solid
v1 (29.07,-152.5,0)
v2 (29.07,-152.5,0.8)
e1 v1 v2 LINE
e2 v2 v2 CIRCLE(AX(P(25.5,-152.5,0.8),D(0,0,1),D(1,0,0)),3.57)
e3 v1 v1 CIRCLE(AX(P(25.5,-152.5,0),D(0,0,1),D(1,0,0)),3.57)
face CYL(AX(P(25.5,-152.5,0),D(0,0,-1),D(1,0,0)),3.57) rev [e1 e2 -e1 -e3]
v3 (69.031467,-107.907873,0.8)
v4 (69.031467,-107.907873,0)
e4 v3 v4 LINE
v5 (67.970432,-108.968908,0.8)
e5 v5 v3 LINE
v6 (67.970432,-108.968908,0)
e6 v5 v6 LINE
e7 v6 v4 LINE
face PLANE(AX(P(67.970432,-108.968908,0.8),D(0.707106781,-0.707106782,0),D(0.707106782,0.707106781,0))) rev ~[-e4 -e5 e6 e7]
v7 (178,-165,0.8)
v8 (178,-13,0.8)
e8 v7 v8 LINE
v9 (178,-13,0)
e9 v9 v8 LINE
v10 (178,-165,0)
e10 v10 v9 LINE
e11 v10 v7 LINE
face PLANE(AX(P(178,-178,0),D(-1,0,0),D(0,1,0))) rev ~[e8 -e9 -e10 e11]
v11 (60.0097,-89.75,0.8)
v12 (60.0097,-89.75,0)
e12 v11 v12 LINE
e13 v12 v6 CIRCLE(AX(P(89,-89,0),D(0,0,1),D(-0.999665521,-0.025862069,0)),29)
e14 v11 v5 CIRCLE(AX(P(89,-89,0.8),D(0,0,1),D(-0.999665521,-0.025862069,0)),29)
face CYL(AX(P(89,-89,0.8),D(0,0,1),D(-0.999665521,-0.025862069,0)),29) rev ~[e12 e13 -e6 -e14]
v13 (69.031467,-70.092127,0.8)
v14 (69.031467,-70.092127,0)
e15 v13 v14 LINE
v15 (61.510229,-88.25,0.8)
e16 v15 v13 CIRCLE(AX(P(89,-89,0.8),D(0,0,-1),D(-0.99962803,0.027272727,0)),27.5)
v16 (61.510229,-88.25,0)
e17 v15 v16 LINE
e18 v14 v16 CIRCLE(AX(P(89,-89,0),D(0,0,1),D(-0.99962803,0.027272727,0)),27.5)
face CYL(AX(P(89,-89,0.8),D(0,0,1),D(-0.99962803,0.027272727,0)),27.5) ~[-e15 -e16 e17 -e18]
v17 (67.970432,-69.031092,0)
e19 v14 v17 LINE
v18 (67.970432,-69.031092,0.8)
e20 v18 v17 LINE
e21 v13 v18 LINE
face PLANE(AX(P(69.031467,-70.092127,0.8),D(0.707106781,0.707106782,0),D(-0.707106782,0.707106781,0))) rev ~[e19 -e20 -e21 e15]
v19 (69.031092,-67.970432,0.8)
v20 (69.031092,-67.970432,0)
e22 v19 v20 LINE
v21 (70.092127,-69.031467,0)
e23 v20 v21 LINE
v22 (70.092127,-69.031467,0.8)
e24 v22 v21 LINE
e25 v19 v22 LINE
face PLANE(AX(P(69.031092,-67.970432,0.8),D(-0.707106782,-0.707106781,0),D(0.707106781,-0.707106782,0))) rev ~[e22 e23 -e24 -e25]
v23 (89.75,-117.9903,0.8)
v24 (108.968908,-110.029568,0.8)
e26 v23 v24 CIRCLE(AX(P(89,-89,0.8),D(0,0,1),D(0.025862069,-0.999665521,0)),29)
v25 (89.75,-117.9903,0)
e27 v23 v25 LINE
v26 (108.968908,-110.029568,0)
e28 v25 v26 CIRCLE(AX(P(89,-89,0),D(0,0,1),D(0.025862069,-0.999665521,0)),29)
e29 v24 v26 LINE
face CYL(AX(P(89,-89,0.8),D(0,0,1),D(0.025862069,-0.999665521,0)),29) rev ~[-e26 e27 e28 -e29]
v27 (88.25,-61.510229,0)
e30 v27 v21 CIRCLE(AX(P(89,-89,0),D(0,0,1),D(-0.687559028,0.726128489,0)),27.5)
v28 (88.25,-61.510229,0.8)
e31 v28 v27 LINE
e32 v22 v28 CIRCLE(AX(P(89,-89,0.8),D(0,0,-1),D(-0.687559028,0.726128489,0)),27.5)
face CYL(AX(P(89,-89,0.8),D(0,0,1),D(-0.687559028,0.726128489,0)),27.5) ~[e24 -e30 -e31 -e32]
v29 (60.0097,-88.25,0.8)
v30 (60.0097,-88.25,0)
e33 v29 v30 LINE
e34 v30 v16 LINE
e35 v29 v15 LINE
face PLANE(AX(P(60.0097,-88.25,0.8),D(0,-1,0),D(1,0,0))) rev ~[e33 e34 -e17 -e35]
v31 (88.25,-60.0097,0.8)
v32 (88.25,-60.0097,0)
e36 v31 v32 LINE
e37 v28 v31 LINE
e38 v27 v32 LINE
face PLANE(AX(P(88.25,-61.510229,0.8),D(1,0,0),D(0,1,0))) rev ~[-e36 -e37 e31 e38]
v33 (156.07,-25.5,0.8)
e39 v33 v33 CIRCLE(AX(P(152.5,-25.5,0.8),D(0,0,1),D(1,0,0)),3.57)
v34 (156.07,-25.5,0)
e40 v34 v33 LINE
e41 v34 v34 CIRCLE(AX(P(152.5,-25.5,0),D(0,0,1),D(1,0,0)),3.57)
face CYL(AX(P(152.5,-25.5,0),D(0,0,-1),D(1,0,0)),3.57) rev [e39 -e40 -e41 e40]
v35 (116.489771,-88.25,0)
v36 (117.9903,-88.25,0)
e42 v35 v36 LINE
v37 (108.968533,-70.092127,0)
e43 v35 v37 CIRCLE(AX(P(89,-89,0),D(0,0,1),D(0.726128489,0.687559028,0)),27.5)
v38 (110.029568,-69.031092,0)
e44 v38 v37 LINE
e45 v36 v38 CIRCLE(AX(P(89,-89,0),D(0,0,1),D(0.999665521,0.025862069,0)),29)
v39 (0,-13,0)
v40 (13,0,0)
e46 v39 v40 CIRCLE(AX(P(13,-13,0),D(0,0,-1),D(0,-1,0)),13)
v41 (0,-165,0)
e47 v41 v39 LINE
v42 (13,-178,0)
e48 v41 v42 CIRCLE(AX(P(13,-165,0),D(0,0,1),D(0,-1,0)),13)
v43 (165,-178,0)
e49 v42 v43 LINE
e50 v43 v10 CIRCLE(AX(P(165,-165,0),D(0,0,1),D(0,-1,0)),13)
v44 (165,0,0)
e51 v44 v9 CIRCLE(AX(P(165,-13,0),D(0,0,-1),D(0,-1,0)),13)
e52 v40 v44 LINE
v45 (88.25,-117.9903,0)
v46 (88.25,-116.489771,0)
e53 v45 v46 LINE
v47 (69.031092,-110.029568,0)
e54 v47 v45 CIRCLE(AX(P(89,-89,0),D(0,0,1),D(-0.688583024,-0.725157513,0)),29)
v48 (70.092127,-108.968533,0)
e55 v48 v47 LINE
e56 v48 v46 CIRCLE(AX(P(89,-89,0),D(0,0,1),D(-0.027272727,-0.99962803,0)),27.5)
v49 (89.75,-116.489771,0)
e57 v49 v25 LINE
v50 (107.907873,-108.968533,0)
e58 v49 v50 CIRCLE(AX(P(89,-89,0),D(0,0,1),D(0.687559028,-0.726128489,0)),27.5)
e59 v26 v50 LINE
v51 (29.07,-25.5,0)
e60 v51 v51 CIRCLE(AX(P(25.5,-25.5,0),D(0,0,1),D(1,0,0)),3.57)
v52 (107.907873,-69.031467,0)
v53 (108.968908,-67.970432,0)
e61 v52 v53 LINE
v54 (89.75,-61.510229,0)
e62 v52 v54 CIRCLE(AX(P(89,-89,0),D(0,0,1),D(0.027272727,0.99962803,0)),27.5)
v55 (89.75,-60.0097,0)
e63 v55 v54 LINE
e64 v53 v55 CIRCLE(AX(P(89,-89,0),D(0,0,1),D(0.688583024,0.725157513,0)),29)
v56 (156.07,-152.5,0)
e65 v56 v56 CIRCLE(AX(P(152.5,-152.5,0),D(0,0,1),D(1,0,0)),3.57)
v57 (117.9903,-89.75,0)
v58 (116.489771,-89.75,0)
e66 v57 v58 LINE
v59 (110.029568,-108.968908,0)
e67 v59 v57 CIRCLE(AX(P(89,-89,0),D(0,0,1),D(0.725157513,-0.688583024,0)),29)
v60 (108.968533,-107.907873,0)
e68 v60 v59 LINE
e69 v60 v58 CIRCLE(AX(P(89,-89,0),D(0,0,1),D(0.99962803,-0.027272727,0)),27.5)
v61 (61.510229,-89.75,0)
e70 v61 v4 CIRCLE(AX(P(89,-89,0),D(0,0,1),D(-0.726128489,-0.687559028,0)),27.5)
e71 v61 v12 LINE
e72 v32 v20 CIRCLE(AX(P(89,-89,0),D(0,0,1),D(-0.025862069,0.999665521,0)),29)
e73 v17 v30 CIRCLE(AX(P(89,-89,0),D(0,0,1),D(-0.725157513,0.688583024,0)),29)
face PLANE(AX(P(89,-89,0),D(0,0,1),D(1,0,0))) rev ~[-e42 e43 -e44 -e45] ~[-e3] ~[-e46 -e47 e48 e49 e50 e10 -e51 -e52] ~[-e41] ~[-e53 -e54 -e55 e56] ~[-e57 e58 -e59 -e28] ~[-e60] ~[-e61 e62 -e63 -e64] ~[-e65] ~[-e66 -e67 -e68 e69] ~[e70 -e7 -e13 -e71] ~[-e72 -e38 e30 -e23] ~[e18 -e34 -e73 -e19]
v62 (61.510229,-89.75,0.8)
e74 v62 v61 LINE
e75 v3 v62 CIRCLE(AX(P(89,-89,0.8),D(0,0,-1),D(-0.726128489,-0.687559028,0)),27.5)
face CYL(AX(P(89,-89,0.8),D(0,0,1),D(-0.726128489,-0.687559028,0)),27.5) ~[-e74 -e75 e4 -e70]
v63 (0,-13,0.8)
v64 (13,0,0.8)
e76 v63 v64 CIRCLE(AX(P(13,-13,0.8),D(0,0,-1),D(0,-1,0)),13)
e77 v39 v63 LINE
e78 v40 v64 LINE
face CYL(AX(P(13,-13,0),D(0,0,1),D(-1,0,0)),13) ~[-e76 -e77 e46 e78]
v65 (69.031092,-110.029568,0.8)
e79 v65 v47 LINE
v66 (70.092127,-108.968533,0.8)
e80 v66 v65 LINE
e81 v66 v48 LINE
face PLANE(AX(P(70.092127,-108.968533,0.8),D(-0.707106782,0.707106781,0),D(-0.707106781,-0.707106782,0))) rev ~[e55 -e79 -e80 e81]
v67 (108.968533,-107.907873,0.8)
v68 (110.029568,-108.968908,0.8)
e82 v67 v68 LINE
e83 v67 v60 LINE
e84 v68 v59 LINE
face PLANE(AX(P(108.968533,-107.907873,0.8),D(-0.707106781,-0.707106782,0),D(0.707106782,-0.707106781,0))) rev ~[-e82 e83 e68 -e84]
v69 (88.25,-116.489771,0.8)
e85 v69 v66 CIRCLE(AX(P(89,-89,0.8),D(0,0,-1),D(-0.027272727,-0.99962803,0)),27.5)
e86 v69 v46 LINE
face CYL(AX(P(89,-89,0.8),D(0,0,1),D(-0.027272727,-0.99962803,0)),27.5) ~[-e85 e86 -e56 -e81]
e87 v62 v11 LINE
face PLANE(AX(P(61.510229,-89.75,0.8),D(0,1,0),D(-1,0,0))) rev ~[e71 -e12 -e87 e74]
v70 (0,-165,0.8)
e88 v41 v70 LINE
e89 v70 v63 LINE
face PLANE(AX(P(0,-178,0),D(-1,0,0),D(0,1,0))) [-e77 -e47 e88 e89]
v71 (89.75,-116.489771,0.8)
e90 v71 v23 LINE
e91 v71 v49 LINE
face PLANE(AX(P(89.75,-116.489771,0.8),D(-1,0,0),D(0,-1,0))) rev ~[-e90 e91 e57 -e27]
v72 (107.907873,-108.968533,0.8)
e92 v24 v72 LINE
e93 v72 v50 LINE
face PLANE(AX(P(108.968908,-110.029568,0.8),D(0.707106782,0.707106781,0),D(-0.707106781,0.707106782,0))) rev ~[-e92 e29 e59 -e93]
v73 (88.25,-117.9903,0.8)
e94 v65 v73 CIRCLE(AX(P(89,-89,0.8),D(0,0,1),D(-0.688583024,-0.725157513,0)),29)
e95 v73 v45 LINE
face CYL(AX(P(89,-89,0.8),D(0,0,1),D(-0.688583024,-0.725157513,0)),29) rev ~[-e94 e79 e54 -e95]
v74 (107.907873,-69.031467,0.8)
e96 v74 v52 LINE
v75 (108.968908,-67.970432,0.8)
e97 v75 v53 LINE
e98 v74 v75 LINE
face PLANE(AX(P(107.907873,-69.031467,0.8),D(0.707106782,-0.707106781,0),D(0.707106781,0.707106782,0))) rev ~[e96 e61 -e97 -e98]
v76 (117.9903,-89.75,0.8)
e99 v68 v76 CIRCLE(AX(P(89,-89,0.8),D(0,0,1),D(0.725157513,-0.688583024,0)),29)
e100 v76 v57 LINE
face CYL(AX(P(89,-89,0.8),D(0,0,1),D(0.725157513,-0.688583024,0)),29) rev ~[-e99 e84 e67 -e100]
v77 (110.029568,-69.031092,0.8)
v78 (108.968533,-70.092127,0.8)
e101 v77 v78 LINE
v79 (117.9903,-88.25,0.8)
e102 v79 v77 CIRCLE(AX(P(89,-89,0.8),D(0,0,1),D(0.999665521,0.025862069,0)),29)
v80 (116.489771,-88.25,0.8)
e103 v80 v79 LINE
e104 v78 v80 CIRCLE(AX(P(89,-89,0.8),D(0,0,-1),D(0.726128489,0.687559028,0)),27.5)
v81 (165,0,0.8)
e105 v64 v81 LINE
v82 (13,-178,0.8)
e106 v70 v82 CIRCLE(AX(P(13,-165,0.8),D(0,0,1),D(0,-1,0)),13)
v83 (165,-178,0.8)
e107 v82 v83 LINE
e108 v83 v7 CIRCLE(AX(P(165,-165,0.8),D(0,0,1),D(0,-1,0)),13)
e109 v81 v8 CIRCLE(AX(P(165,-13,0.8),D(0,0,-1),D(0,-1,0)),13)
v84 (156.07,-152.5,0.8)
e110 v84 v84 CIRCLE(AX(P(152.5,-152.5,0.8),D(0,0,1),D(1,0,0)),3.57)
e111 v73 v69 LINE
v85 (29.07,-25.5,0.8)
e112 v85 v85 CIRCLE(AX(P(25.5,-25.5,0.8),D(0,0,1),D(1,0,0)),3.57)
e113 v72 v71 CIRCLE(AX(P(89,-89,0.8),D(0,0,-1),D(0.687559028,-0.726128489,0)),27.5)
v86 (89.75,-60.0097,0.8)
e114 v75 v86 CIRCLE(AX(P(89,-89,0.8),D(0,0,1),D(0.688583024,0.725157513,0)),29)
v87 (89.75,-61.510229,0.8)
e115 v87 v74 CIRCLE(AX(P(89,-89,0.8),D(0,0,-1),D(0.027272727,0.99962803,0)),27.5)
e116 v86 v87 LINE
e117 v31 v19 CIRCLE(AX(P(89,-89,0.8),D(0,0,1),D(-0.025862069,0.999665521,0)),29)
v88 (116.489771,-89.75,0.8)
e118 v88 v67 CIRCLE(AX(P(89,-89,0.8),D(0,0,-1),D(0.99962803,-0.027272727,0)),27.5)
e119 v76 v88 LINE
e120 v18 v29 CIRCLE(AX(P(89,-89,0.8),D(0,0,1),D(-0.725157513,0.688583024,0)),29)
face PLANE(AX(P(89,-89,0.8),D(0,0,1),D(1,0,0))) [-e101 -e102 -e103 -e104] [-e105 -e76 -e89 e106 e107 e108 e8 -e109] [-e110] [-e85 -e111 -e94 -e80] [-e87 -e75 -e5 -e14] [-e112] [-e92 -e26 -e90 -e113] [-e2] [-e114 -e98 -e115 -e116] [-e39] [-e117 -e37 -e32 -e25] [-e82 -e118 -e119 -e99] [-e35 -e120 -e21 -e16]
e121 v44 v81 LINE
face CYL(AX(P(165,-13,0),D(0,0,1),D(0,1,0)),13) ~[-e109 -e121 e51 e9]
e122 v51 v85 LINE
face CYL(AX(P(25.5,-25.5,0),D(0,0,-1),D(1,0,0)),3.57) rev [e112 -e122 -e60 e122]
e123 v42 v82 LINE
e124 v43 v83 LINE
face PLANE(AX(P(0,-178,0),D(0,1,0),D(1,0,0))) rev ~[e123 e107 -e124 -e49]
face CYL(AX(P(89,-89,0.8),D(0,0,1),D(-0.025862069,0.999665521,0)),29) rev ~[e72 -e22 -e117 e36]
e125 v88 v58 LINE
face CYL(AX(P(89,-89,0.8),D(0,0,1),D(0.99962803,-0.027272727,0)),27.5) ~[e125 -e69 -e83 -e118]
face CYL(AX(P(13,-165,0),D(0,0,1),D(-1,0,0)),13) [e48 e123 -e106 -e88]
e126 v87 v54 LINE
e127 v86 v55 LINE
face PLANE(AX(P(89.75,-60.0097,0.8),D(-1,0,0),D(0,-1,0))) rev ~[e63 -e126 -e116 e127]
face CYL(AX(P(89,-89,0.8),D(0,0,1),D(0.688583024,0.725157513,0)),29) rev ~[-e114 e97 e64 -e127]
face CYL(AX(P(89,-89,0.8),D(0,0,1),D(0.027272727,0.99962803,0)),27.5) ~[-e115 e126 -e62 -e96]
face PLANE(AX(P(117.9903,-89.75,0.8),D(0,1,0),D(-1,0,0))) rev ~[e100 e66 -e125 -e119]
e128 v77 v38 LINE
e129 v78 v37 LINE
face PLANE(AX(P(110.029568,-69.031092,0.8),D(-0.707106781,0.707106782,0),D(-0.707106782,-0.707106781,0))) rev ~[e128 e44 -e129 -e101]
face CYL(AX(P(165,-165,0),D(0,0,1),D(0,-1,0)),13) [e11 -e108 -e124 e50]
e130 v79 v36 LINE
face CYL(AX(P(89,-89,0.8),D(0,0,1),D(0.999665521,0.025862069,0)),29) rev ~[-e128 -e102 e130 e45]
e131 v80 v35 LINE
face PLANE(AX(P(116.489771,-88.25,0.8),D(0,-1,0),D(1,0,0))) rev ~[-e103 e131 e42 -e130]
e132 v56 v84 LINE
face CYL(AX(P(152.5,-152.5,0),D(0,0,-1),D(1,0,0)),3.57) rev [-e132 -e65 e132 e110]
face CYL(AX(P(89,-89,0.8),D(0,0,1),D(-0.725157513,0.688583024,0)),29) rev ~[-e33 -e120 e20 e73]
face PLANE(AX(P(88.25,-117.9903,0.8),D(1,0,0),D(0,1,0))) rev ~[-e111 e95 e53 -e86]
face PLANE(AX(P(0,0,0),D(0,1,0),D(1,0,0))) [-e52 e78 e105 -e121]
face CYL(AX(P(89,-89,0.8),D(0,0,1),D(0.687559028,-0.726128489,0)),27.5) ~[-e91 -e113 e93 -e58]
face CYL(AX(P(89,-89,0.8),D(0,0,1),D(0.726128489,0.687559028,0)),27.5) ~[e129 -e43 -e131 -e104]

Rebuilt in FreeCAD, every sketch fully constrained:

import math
import FreeCAD as App
import Part
import Sketcher
Q = App.Units.Quantity


def edges_at(feature, points):
    """Names of the edges that pass closest to the given points."""
    edges = feature.Shape.Edges
    near = lambda p: min(range(len(edges)), key=lambda i: edges[i].distToShape(Part.Vertex(*p))[0])
    return sorted({f"Edge{near(p) + 1}" for p in points})


def add_polygon(sketch, points):
    """Adds a closed chain of lines whose ends are joined by coincident constraints."""
    first, n = sketch.GeometryCount, len(points)
    for a, b in zip(points, points[1:] + points[:1]):
        sketch.addGeometry(Part.LineSegment(App.Vector(*a, 0), App.Vector(*b, 0)), False)
    for i in range(n):
        sketch.addConstraint(Sketcher.Constraint("Coincident", first + i, 2, first + (i + 1) % n, 1))

doc = App.newDocument("Part")
body = doc.addObject("PartDesign::Body", "Body")

sketch1 = body.newObject("Sketcher::SketchObject", "Sketch")
sketch1.AttachmentSupport = (doc.getObject("XY_Plane"), [""])
sketch1.MapMode = "FlatFace"
add_polygon(sketch1, [(0, 0), (0, -178), (178, -178), (178, 0)])
sketch1.addGeometry(Part.Circle(App.Vector(25.5, -152.5, 0), App.Vector(0, 0, 1), 3.6), False)
sketch1.addGeometry(Part.Circle(App.Vector(152.5, -152.5, 0), App.Vector(0, 0, 1), 3.6), False)
sketch1.addGeometry(Part.Circle(App.Vector(25.5, -25.5, 0), App.Vector(0, 0, 1), 3.6), False)
sketch1.addGeometry(Part.Circle(App.Vector(152.5, -25.5, 0), App.Vector(0, 0, 1), 3.6), False)
sketch1.addConstraint([
    Sketcher.Constraint("Vertical", 0),
    Sketcher.Constraint("Horizontal", 1),
    Sketcher.Constraint("Vertical", 2),
    Sketcher.Constraint("Horizontal", 3),
    Sketcher.Constraint("Coincident", 3, 2, -1, 1),
    Sketcher.Constraint("Equal", 4, 5),
    Sketcher.Constraint("Equal", 5, 6),
    Sketcher.Constraint("Equal", 6, 7),
    Sketcher.Constraint("Horizontal", 4, 3, 5, 3),
    Sketcher.Constraint("Horizontal", 6, 3, 7, 3),
    Sketcher.Constraint("Vertical", 4, 3, 6, 3),
    Sketcher.Constraint("Vertical", 5, 3, 7, 3),
    Sketcher.Constraint("Equal", 3, 0),
    Sketcher.Constraint("Diameter", 4, Q("7.14 mm")),
    Sketcher.Constraint("DistanceX", 1, 1, 1, 2, Q("178 mm")),
    Sketcher.Constraint("DistanceX", 4, 3, 5, 3, Q("127 mm")),
    Sketcher.Constraint("DistanceY", 4, 3, 6, 3, Q("127 mm")),
    Sketcher.Constraint("DistanceX", -1, 1, 4, 3, Q("25.5 mm")),
    Sketcher.Constraint("DistanceY", 4, 3, -1, 1, Q("152.5 mm")),
])
pad1 = body.newObject("PartDesign::Pad", "Pad")
pad1.Profile = sketch1
pad1.Length = 0.8
doc.recompute()

fillet = body.newObject("PartDesign::Fillet", "Fillet")
fillet.Base = (pad1, edges_at(pad1, [
    (0, 0, 0.4),
    (178, 0, 0.4),
    (178, -178, 0.4),
    (0, -178, 0.4),
]))
fillet.Radius = 13

sketch2 = body.newObject("Sketcher::SketchObject", "Sketch001")
sketch2.AttachmentSupport = (doc.getObject("XY_Plane"), [""])
sketch2.MapMode = "FlatFace"
sketch2.AttachmentOffset = App.Placement(App.Vector(0, 0, 0.8), App.Rotation())
sketch2.addGeometry([
    Part.LineSegment(App.Vector(88.2, -61.5, 0), App.Vector(88.2, -60, 0)),
    Part.ArcOfCircle(Part.Circle(App.Vector(89, -89, 0), App.Vector(0, 0, 1), 29), math.radians(91), math.radians(134)),
    Part.LineSegment(App.Vector(69, -68, 0), App.Vector(70.1, -69, 0)),
    Part.ArcOfCircle(Part.Circle(App.Vector(89, -89, 0), App.Vector(0, 0, 1), 27.5), math.radians(92), math.radians(133)),
    Part.ArcOfCircle(Part.Circle(App.Vector(89, -89, 0), App.Vector(0, 0, 1), 29), math.radians(46), math.radians(89)),
    Part.LineSegment(App.Vector(89.8, -60, 0), App.Vector(89.8, -61.5, 0)),
    Part.ArcOfCircle(Part.Circle(App.Vector(89, -89, 0), App.Vector(0, 0, 1), 27.5), math.radians(47), math.radians(88)),
    Part.LineSegment(App.Vector(107.9, -69, 0), App.Vector(109, -68, 0)),
    Part.ArcOfCircle(Part.Circle(App.Vector(89, -89, 0), App.Vector(0, 0, 1), 29), math.radians(1), math.radians(44)),
    Part.LineSegment(App.Vector(110, -69, 0), App.Vector(109, -70.1, 0)),
    Part.ArcOfCircle(Part.Circle(App.Vector(89, -89, 0), App.Vector(0, 0, 1), 27.5), math.radians(2), math.radians(43)),
    Part.LineSegment(App.Vector(116.5, -88.2, 0), App.Vector(118, -88.2, 0)),
    Part.ArcOfCircle(Part.Circle(App.Vector(89, -89, 0), App.Vector(0, 0, 1), 29), math.radians(-89), math.radians(-46)),
    Part.LineSegment(App.Vector(109, -110, 0), App.Vector(107.9, -109, 0)),
    Part.ArcOfCircle(Part.Circle(App.Vector(89, -89, 0), App.Vector(0, 0, 1), 27.5), math.radians(-88), math.radians(-47)),
    Part.LineSegment(App.Vector(89.8, -116.5, 0), App.Vector(89.8, -118, 0)),
    Part.ArcOfCircle(Part.Circle(App.Vector(89, -89, 0), App.Vector(0, 0, 1), 29), math.radians(-44), math.radians(-1)),
    Part.LineSegment(App.Vector(118, -89.8, 0), App.Vector(116.5, -89.8, 0)),
    Part.ArcOfCircle(Part.Circle(App.Vector(89, -89, 0), App.Vector(0, 0, 1), 27.5), math.radians(-43), math.radians(-2)),
    Part.LineSegment(App.Vector(109, -107.9, 0), App.Vector(110, -109, 0)),
    Part.LineSegment(App.Vector(69, -70.1, 0), App.Vector(68, -69, 0)),
    Part.ArcOfCircle(Part.Circle(App.Vector(89, -89, 0), App.Vector(0, 0, 1), 29), math.radians(136), math.radians(179)),
    Part.LineSegment(App.Vector(60, -88.2, 0), App.Vector(61.5, -88.2, 0)),
    Part.ArcOfCircle(Part.Circle(App.Vector(89, -89, 0), App.Vector(0, 0, 1), 27.5), math.radians(137), math.radians(178)),
    Part.LineSegment(App.Vector(61.5, -89.8, 0), App.Vector(60, -89.8, 0)),
    Part.ArcOfCircle(Part.Circle(App.Vector(89, -89, 0), App.Vector(0, 0, 1), 29), math.radians(-179), math.radians(-136)),
    Part.LineSegment(App.Vector(68, -109, 0), App.Vector(69, -107.9, 0)),
    Part.ArcOfCircle(Part.Circle(App.Vector(89, -89, 0), App.Vector(0, 0, 1), 27.5), math.radians(-178), math.radians(-137)),
    Part.LineSegment(App.Vector(70.1, -109, 0), App.Vector(69, -110, 0)),
    Part.ArcOfCircle(Part.Circle(App.Vector(89, -89, 0), App.Vector(0, 0, 1), 29), math.radians(-134), math.radians(-91)),
    Part.LineSegment(App.Vector(88.2, -118, 0), App.Vector(88.2, -116.5, 0)),
    Part.ArcOfCircle(Part.Circle(App.Vector(89, -89, 0), App.Vector(0, 0, 1), 27.5), math.radians(-133), math.radians(-92)),
], False)
sketch2.addConstraint([
    Sketcher.Constraint("Coincident", 0, 2, 1, 1),
    Sketcher.Constraint("Coincident", 1, 2, 2, 1),
    Sketcher.Constraint("Coincident", 2, 2, 3, 2),
    Sketcher.Constraint("Coincident", 3, 1, 0, 1),
    Sketcher.Constraint("Coincident", 4, 2, 5, 1),
    Sketcher.Constraint("Coincident", 5, 2, 6, 2),
    Sketcher.Constraint("Coincident", 6, 1, 7, 1),
    Sketcher.Constraint("Coincident", 7, 2, 4, 1),
    Sketcher.Constraint("Coincident", 8, 2, 9, 1),
    Sketcher.Constraint("Coincident", 9, 2, 10, 2),
    Sketcher.Constraint("Coincident", 10, 1, 11, 1),
    Sketcher.Constraint("Coincident", 11, 2, 8, 1),
    Sketcher.Constraint("Coincident", 12, 2, 13, 1),
    Sketcher.Constraint("Coincident", 13, 2, 14, 2),
    Sketcher.Constraint("Coincident", 14, 1, 15, 1),
    Sketcher.Constraint("Coincident", 15, 2, 12, 1),
    Sketcher.Constraint("Coincident", 16, 2, 17, 1),
    Sketcher.Constraint("Coincident", 17, 2, 18, 2),
    Sketcher.Constraint("Coincident", 18, 1, 19, 1),
    Sketcher.Constraint("Coincident", 19, 2, 16, 1),
    Sketcher.Constraint("Coincident", 20, 2, 21, 1),
    Sketcher.Constraint("Coincident", 21, 2, 22, 1),
    Sketcher.Constraint("Coincident", 22, 2, 23, 2),
    Sketcher.Constraint("Coincident", 23, 1, 20, 1),
    Sketcher.Constraint("Coincident", 24, 2, 25, 1),
    Sketcher.Constraint("Coincident", 25, 2, 26, 1),
    Sketcher.Constraint("Coincident", 26, 2, 27, 2),
    Sketcher.Constraint("Coincident", 27, 1, 24, 1),
    Sketcher.Constraint("Coincident", 28, 2, 29, 1),
    Sketcher.Constraint("Coincident", 29, 2, 30, 1),
    Sketcher.Constraint("Coincident", 30, 2, 31, 2),
    Sketcher.Constraint("Coincident", 31, 1, 28, 1),
    Sketcher.Constraint("Vertical", 0),
    Sketcher.Constraint("Vertical", 5),
    Sketcher.Constraint("Horizontal", 11),
    Sketcher.Constraint("Vertical", 15),
    Sketcher.Constraint("Horizontal", 17),
    Sketcher.Constraint("Horizontal", 22),
    Sketcher.Constraint("Horizontal", 24),
    Sketcher.Constraint("Vertical", 30),
    Sketcher.Constraint("Coincident", 3, 3, 1, 3),
    Sketcher.Constraint("Coincident", 4, 3, 1, 3),
    Sketcher.Constraint("Coincident", 6, 3, 1, 3),
    Sketcher.Constraint("Coincident", 8, 3, 1, 3),
    Sketcher.Constraint("Coincident", 10, 3, 1, 3),
    Sketcher.Constraint("Coincident", 12, 3, 1, 3),
    Sketcher.Constraint("Coincident", 14, 3, 1, 3),
    Sketcher.Constraint("Coincident", 16, 3, 1, 3),
    Sketcher.Constraint("Coincident", 18, 3, 1, 3),
    Sketcher.Constraint("Coincident", 21, 3, 1, 3),
    Sketcher.Constraint("Coincident", 23, 3, 1, 3),
    Sketcher.Constraint("Coincident", 25, 3, 1, 3),
    Sketcher.Constraint("Coincident", 27, 3, 1, 3),
    Sketcher.Constraint("Coincident", 29, 3, 1, 3),
    Sketcher.Constraint("Coincident", 31, 3, 1, 3),
    Sketcher.Constraint("Equal", 1, 4),
    Sketcher.Constraint("Equal", 3, 6),
    Sketcher.Constraint("Equal", 4, 8),
    Sketcher.Constraint("Equal", 6, 10),
    Sketcher.Constraint("Equal", 8, 12),
    Sketcher.Constraint("Equal", 10, 14),
    Sketcher.Constraint("Equal", 12, 16),
    Sketcher.Constraint("Equal", 14, 18),
    Sketcher.Constraint("Equal", 16, 21),
    Sketcher.Constraint("Equal", 18, 23),
    Sketcher.Constraint("Equal", 21, 25),
    Sketcher.Constraint("Equal", 23, 27),
    Sketcher.Constraint("Equal", 25, 29),
    Sketcher.Constraint("Equal", 27, 31),
    Sketcher.Constraint("Perpendicular", 2, 7),
    Sketcher.Constraint("Parallel", 7, 9),
    Sketcher.Constraint("Perpendicular", 9, 13),
    Sketcher.Constraint("Parallel", 13, 19),
    Sketcher.Constraint("Parallel", 19, 20),
    Sketcher.Constraint("Perpendicular", 20, 26),
    Sketcher.Constraint("Parallel", 26, 28),
    Sketcher.Constraint("Horizontal", 0, 2, 4, 2),
    Sketcher.Constraint("Horizontal", 2, 2, 6, 1),
    Sketcher.Constraint("Horizontal", 1, 2, 7, 2),
    Sketcher.Constraint("Horizontal", 8, 2, 20, 2),
    Sketcher.Constraint("Horizontal", 11, 2, 21, 2),
    Sketcher.Constraint("Horizontal", 17, 2, 24, 2),
    Sketcher.Constraint("Horizontal", 19, 2, 25, 2),
    Sketcher.Constraint("Horizontal", 12, 2, 28, 2),
    Sketcher.Constraint("Horizontal", 15, 2, 29, 2),
    Sketcher.Constraint("Vertical", 7, 2, 12, 2),
    Sketcher.Constraint("Vertical", 5, 2, 14, 1),
    Sketcher.Constraint("Vertical", 11, 2, 16, 2),
    Sketcher.Constraint("Vertical", 9, 2, 18, 1),
    Sketcher.Constraint("Radius", 1, Q("29 mm")),
    Sketcher.Constraint("Radius", 3, Q("27.5 mm")),
    Sketcher.Constraint("DistanceX", -1, 1, 1, 3, Q("89 mm")),
    Sketcher.Constraint("DistanceY", 1, 3, -1, 1, Q("89 mm")),
    Sketcher.Constraint("DistanceX", 0, 2, 4, 2, Q("1.5 mm")),
    Sketcher.Constraint("DistanceY", 16, 2, 11, 2, Q("1.5 mm")),
    Sketcher.Constraint("DistanceX", 7, 2, 8, 2, Q("1.06066 mm")),
    Sketcher.Constraint("DistanceX", -1, 1, 1, 2, Q("69.031092 mm")),
])
pocket1 = body.newObject("PartDesign::Pocket", "Pocket")
pocket1.Profile = sketch2
pocket1.Length = 10

doc.recompute()
